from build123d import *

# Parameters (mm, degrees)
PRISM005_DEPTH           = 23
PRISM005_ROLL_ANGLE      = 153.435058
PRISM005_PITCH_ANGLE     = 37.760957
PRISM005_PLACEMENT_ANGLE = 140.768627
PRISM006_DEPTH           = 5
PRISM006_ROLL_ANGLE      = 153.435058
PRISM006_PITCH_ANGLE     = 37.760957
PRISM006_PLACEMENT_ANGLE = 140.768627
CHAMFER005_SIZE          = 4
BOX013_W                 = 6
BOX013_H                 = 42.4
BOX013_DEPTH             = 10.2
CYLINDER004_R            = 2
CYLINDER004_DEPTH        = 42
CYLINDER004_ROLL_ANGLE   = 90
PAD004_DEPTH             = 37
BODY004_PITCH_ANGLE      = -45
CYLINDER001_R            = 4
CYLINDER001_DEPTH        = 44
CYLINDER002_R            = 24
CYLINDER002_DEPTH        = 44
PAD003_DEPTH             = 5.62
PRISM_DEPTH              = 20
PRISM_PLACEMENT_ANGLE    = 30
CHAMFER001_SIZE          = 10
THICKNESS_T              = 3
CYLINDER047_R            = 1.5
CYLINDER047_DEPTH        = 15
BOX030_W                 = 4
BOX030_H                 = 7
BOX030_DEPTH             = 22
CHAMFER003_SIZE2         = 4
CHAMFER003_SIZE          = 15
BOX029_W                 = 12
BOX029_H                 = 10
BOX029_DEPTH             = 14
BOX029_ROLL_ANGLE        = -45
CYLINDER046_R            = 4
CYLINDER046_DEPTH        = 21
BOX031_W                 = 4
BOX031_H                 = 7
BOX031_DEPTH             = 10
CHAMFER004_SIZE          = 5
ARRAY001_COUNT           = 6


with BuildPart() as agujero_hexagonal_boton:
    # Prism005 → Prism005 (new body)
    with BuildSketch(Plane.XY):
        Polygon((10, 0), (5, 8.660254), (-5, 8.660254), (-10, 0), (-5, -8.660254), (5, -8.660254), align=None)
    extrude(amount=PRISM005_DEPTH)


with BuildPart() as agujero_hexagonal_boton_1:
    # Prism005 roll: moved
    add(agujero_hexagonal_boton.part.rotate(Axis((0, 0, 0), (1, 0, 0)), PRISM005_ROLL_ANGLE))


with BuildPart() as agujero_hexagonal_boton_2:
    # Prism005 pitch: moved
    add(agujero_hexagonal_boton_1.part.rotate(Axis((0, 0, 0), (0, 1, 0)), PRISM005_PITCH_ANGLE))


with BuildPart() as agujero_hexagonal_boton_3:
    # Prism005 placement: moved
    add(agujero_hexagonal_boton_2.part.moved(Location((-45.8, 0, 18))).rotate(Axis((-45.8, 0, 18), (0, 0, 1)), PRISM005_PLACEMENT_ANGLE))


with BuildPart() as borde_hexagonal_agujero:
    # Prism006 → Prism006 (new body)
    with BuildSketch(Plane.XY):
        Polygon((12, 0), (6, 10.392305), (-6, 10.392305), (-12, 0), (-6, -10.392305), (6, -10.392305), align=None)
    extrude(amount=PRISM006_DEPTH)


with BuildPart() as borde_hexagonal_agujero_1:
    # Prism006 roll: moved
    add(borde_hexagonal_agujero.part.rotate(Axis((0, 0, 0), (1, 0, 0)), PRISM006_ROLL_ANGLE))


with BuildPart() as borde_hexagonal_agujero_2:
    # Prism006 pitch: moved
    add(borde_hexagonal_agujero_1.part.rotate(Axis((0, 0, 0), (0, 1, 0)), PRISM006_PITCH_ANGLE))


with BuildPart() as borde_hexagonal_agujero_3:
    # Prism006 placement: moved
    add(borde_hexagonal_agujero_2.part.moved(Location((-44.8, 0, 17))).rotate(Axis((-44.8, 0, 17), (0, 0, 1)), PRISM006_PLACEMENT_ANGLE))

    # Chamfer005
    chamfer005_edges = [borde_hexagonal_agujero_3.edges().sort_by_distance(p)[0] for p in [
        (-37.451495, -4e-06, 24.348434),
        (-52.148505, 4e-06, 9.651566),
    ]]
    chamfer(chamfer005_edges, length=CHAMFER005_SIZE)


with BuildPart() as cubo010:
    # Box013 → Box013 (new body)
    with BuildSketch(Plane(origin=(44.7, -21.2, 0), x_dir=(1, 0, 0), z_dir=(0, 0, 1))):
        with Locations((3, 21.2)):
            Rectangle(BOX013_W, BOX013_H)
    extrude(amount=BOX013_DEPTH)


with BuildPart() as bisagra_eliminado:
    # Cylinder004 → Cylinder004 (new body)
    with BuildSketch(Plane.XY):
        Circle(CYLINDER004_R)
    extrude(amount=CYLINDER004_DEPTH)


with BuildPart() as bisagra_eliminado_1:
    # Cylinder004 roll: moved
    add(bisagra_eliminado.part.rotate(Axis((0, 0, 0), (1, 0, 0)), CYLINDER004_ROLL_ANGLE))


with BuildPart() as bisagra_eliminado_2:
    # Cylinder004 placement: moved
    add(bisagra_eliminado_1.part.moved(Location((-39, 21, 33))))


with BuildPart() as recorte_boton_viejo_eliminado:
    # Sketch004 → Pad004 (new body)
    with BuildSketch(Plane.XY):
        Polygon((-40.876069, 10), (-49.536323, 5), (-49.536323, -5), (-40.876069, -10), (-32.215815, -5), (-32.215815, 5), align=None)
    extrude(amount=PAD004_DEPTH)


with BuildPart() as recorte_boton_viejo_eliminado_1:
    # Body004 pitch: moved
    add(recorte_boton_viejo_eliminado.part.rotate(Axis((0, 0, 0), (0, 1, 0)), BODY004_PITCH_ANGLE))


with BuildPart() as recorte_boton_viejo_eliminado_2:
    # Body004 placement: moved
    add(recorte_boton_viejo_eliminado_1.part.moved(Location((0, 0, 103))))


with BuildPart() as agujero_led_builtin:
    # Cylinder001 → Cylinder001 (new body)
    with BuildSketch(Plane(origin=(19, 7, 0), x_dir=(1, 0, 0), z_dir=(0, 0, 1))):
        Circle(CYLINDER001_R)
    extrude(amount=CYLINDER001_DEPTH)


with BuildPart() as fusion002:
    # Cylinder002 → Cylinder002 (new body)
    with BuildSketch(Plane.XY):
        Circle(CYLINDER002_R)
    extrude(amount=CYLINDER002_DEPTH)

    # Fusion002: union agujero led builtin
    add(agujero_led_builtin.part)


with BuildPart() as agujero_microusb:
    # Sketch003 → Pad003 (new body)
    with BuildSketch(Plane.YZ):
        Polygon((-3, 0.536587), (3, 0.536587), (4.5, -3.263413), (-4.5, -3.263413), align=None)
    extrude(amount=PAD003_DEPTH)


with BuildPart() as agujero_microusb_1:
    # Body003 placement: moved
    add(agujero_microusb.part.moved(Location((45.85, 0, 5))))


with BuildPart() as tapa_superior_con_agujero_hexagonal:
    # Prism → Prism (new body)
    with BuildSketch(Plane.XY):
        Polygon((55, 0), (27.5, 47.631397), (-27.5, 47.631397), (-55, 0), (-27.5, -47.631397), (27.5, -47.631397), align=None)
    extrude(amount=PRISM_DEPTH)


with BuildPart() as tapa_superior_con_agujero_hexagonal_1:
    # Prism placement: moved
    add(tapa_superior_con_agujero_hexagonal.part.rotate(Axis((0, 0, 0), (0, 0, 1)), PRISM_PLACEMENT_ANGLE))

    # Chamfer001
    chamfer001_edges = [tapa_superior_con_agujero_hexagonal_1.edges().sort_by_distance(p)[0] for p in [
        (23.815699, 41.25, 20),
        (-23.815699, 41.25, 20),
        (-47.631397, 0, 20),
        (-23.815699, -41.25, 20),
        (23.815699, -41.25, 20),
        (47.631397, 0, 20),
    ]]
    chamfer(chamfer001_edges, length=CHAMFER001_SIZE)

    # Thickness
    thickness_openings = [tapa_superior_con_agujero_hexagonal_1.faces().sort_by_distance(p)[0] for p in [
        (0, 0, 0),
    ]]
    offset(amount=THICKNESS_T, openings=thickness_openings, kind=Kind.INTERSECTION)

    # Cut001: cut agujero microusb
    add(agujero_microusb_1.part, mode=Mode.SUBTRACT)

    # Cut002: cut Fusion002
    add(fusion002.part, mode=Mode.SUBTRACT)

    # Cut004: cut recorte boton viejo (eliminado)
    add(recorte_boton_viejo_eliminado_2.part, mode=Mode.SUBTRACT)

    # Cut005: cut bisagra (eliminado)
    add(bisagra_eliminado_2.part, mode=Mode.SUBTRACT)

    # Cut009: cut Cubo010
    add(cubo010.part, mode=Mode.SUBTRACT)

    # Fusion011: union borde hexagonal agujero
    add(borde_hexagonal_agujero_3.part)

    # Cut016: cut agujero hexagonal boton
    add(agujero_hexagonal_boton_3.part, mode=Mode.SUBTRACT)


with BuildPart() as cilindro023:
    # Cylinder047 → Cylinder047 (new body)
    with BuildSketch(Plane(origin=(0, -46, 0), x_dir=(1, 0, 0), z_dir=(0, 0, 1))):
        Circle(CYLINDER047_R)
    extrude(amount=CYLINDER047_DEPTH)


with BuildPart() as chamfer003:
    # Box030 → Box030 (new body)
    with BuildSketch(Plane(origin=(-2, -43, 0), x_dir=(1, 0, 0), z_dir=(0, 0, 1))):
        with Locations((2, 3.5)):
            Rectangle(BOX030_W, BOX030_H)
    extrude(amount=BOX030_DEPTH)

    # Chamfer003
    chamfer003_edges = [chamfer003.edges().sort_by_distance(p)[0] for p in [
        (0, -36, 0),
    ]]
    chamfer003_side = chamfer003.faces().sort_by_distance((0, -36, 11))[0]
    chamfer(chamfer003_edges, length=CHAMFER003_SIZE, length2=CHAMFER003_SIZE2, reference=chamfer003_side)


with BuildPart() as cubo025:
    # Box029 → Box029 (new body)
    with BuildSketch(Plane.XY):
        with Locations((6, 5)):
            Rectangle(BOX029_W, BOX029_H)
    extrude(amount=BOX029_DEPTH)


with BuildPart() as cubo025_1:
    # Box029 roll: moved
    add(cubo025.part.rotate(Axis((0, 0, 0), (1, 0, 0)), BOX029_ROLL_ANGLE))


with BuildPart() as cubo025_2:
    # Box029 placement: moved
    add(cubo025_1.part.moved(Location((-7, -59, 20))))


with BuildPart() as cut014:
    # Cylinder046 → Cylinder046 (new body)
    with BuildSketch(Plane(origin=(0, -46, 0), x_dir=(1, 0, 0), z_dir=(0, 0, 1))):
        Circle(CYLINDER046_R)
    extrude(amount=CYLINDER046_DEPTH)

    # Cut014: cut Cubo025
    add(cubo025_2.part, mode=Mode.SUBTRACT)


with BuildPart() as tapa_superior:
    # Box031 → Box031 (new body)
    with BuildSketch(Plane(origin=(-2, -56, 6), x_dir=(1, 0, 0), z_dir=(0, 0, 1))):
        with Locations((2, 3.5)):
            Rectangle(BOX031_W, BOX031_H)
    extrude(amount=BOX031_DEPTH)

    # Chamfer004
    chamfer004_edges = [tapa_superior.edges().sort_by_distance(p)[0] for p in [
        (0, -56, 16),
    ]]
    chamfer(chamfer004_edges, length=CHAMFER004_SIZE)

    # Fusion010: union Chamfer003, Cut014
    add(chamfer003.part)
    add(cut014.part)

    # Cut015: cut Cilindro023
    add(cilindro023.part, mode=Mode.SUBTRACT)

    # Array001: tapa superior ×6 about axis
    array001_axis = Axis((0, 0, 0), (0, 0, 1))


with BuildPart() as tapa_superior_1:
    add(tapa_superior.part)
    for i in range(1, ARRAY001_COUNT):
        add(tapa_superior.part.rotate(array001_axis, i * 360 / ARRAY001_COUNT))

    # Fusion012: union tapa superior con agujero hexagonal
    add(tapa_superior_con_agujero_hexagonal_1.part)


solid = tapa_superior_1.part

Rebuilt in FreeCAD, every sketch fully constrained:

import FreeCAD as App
import Part
import Sketcher

V = App.Vector
Q = App.Units.Quantity


def edges_at(feature, points):
    """Names of the edges that pass closest to the given points."""
    edges = feature.Shape.Edges
    near = lambda p: min(range(len(edges)), key=lambda i: edges[i].distToShape(Part.Vertex(*p))[0])
    return sorted({f"Edge{near(p) + 1}" for p in points})


def faces_at(feature, points):
    """Names of the faces that lie closest to the given points."""
    faces = feature.Shape.Faces
    near = lambda p: min(range(len(faces)), key=lambda i: faces[i].distToShape(Part.Vertex(*p))[0])
    return sorted({f"Face{near(p) + 1}" for p in points})


def add_polygon(sketch, points):
    """Adds a closed chain of lines whose ends are joined by coincident constraints."""
    first, n = sketch.GeometryCount, len(points)
    for a, b in zip(points, points[1:] + points[:1]):
        sketch.addGeometry(Part.LineSegment(App.Vector(*a, 0), App.Vector(*b, 0)), False)
    for i in range(n):
        sketch.addConstraint(Sketcher.Constraint("Coincident", first + i, 2, first + (i + 1) % n, 1))

doc = App.newDocument("Part")
params = doc.addObject("Spreadsheet::Sheet", "Params")
for row, (alias, value) in enumerate([
    ("sketch1_width", "10 mm"),
    ("sketch1_length", "10 mm"),
    ("pad1_length", "23 mm"),
    ("sketch2_width", "12 mm"),
    ("sketch2_length", "12 mm"),
    ("pad2_length", "5 mm"),
    ("chamfer_size", "4 mm"),
    ("sketch3_width", "6 mm"),
    ("sketch3_height", "42.4 mm"),
    ("pad3_length", "10.2 mm"),
    ("sketch4_diameter", "4 mm"),
    ("pad4_length", "42 mm"),
    ("sketch5_height", "10 mm"),
    ("sketch5_length", "10 mm"),
    ("pad5_length", "37 mm"),
    ("sketch6_diameter", "8 mm"),
    ("pad6_length", "44 mm"),
    ("sketch7_diameter", "48 mm"),
    ("pad7_length", "44 mm"),
    ("sketch8_width", "6 mm"),
    ("sketch8_width2", "9 mm"),
    ("pad8_length", "5.62 mm"),
    ("sketch9_width", "55 mm"),
    ("sketch9_length", "55 mm"),
    ("pad9_length", "20 mm"),
    ("chamfer2_size", "10 mm"),
    ("thickness_wall", "3 mm"),
    ("sketch10_diameter", "3 mm"),
    ("pad10_length", "15 mm"),
    ("sketch11_width", "4 mm"),
    ("sketch11_height", "7 mm"),
    ("pad11_length", "22 mm"),
    ("chamfer3_size", "15 mm"),
    ("chamfer3_size2", "4 mm"),
    ("sketch12_width", "12 mm"),
    ("sketch12_height", "10 mm"),
    ("pad12_length", "14 mm"),
    ("sketch13_diameter", "8 mm"),
    ("pad13_length", "21 mm"),
    ("sketch14_width", "4 mm"),
    ("sketch14_height", "7 mm"),
    ("pad14_length", "10 mm"),
    ("chamfer4_size", "5 mm"),
], start=1):
    params.set(f"A{row}", alias)
    params.set(f"B{row}", "=" + value)
    params.setAlias(f"B{row}", alias)

body = doc.addObject("PartDesign::Body", "Body")

sketch1 = body.newObject("Sketcher::SketchObject", "Sketch")
sketch1.AttachmentSupport = (doc.getObject("XY_Plane"), [""])
sketch1.MapMode = "FlatFace"
add_polygon(sketch1, [(10, 0), (5, 9), (-5, 9), (-10, 0), (-5, -9), (5, -9)])
sketch1.addConstraint([
    Sketcher.Constraint("Horizontal", 1),
    Sketcher.Constraint("Horizontal", 4),
    Sketcher.Constraint("Symmetric", 0, 2, 3, 2, -1, 1),
    Sketcher.Constraint("Symmetric", 2, 2, 5, 2, -1, 1),
    Sketcher.Constraint("PointOnObject", 2, 2, -1),
    Sketcher.Constraint("Parallel", 2, 5),
    Sketcher.Constraint("Vertical", 1, 2, 3, 2),
    Sketcher.Constraint("DistanceX", 1, 2, 1, 1, 10.0),
    Sketcher.Constraint("Angle", 0, Q("120 deg")),
    Sketcher.Constraint("Distance", 0, 10.0),
])
sketch1.setExpression("Constraints[13]", "Params.sketch1_width")
sketch1.setExpression("Constraints[15]", "Params.sketch1_length")
pad1 = body.newObject("PartDesign::Pad", "Pad")
pad1.Profile = sketch1
pad1.setExpression("Length", "Params.pad1_length")
body2 = doc.addObject("PartDesign::Body", "Body001")
doc.recompute()

body.Placement = App.Placement(V(0, 0, 0), App.Rotation(V(1, 0, 0), 153.435058))
boolean = body2.newObject("PartDesign::Boolean", "Boolean")
boolean.Type = "Fuse"
boolean.addObjects([body])
body3 = doc.addObject("PartDesign::Body", "Body002")
doc.recompute()

body2.Placement = App.Placement(V(0, 0, 0), App.Rotation(V(0, 1, 0), 37.760957))
boolean2 = body3.newObject("PartDesign::Boolean", "Boolean001")
boolean2.Type = "Fuse"
boolean2.addObjects([body2])
body4 = doc.addObject("PartDesign::Body", "Body003")
doc.recompute()

body3.Placement = App.Placement(V(-45.8, 0, 18), App.Rotation(V(0, 0, 1), 140.768627))
boolean3 = body4.newObject("PartDesign::Boolean", "Boolean002")
boolean3.Type = "Fuse"
boolean3.addObjects([body3])
body5 = doc.addObject("PartDesign::Body", "Body004")

sketch2 = body5.newObject("Sketcher::SketchObject", "Sketch001")
sketch2.AttachmentSupport = (doc.getObject("XY_Plane004"), [""])
sketch2.MapMode = "FlatFace"
add_polygon(sketch2, [(12, 0), (6, 10), (-6, 10), (-12, 0), (-6, -10), (6, -10)])
sketch2.addConstraint([
    Sketcher.Constraint("Horizontal", 1),
    Sketcher.Constraint("Horizontal", 4),
    Sketcher.Constraint("Symmetric", 0, 2, 3, 2, -1, 1),
    Sketcher.Constraint("Symmetric", 2, 2, 5, 2, -1, 1),
    Sketcher.Constraint("PointOnObject", 2, 2, -1),
    Sketcher.Constraint("Parallel", 2, 5),
    Sketcher.Constraint("Vertical", 1, 2, 3, 2),
    Sketcher.Constraint("DistanceX", 1, 2, 1, 1, 12.0),
    Sketcher.Constraint("Angle", 0, Q("120 deg")),
    Sketcher.Constraint("Distance", 0, 12.0),
])
sketch2.setExpression("Constraints[13]", "Params.sketch2_width")
sketch2.setExpression("Constraints[15]", "Params.sketch2_length")
pad2 = body5.newObject("PartDesign::Pad", "Pad001")
pad2.Profile = sketch2
pad2.setExpression("Length", "Params.pad2_length")
body6 = doc.addObject("PartDesign::Body", "Body005")
doc.recompute()

body5.Placement = App.Placement(V(0, 0, 0), App.Rotation(V(1, 0, 0), 153.435058))
boolean4 = body6.newObject("PartDesign::Boolean", "Boolean003")
boolean4.Type = "Fuse"
boolean4.addObjects([body5])
body7 = doc.addObject("PartDesign::Body", "Body006")
doc.recompute()

body6.Placement = App.Placement(V(0, 0, 0), App.Rotation(V(0, 1, 0), 37.760957))
boolean5 = body7.newObject("PartDesign::Boolean", "Boolean004")
boolean5.Type = "Fuse"
boolean5.addObjects([body6])
body8 = doc.addObject("PartDesign::Body", "Body007")
doc.recompute()

body7.Placement = App.Placement(V(-44.8, 0, 17), App.Rotation(V(0, 0, 1), 140.768627))
boolean6 = body8.newObject("PartDesign::Boolean", "Boolean005")
boolean6.Type = "Fuse"
boolean6.addObjects([body7])
doc.recompute()

chamfer = body8.newObject("PartDesign::Chamfer", "Chamfer")
chamfer.Base = (boolean6, edges_at(boolean6, [(-37.451, 0, 24.348), (-52.149, 0, 9.652)]))
chamfer.setExpression("Size", "Params.chamfer_size")
body9 = doc.addObject("PartDesign::Body", "Body008")

sketch3 = body9.newObject("Sketcher::SketchObject", "Sketch002")
sketch3.AttachmentSupport = (doc.getObject("XY_Plane008"), [""])
sketch3.MapMode = "FlatFace"
add_polygon(sketch3, [(45, 21), (45, -21), (51, -21), (51, 21)])
sketch3.addConstraint([
    Sketcher.Constraint("Vertical", 0),
    Sketcher.Constraint("Horizontal", 1),
    Sketcher.Constraint("Vertical", 2),
    Sketcher.Constraint("Horizontal", 3),
    Sketcher.Constraint("DistanceX", 1, 1, 1, 2, 6.0),
    Sketcher.Constraint("DistanceY", 0, 2, 0, 1, 42.4),
    Sketcher.Constraint("DistanceX", -1, 1, 0, 2, 44.7),
    Sketcher.Constraint("DistanceY", 0, 2, -1, 1, 21.2),
])
sketch3.setExpression("Constraints[8]", "Params.sketch3_width")
sketch3.setExpression("Constraints[9]", "Params.sketch3_height")
pad3 = body9.newObject("PartDesign::Pad", "Pad002")
pad3.Profile = sketch3
pad3.setExpression("Length", "Params.pad3_length")
body10 = doc.addObject("PartDesign::Body", "Body009")

sketch4 = body10.newObject("Sketcher::SketchObject", "Sketch003")
sketch4.AttachmentSupport = (doc.getObject("XY_Plane009"), [""])
sketch4.MapMode = "FlatFace"
sketch4.addGeometry(Part.Circle(V(0, 0, 0), V(0, 0, 1), 2), False)
sketch4.addConstraint([
    Sketcher.Constraint("Coincident", 0, 3, -1, 1),
    Sketcher.Constraint("Diameter", 0, 4.0),
])
sketch4.setExpression("Constraints[1]", "Params.sketch4_diameter")
pad4 = body10.newObject("PartDesign::Pad", "Pad003")
pad4.Profile = sketch4
pad4.setExpression("Length", "Params.pad4_length")
body11 = doc.addObject("PartDesign::Body", "Body010")
doc.recompute()

body10.Placement = App.Placement(V(0, 0, 0), App.Rotation(V(1, 0, 0), 90))
boolean7 = body11.newObject("PartDesign::Boolean", "Boolean006")
boolean7.Type = "Fuse"
boolean7.addObjects([body10])
body12 = doc.addObject("PartDesign::Body", "Body011")
doc.recompute()

body11.Placement = App.Placement(V(-39, 21, 33), App.Rotation(V(0, 0, 1), 0))
boolean8 = body12.newObject("PartDesign::Boolean", "Boolean007")
boolean8.Type = "Fuse"
boolean8.addObjects([body11])
body13 = doc.addObject("PartDesign::Body", "Body012")

sketch5 = body13.newObject("Sketcher::SketchObject", "Sketch004")
sketch5.AttachmentSupport = (doc.getObject("XY_Plane012"), [""])
sketch5.MapMode = "FlatFace"
add_polygon(sketch5, [(-41, 10), (-50, 5), (-50, -5), (-41, -10), (-32, -5), (-32, 5)])
sketch5.addConstraint([
    Sketcher.Constraint("Vertical", 1),
    Sketcher.Constraint("Vertical", 4),
    Sketcher.Constraint("Symmetric", 2, 2, 5, 2, -1),
    Sketcher.Constraint("Parallel", 0, 3),
    Sketcher.Constraint("Parallel", 2, 5),
    Sketcher.Constraint("Horizontal", 1, 2, 3, 2),
    Sketcher.Constraint("Horizontal", 0, 2, 4, 2),
    Sketcher.Constraint("DistanceY", 1, 2, 1, 1, 10.0),
    Sketcher.Constraint("Angle", 0, Q("-150 deg")),
    Sketcher.Constraint("Distance", 0, 10.0),
    Sketcher.Constraint("DistanceX", 2, 2, -1, 1, 40.876069),
])
sketch5.setExpression("Constraints[13]", "Params.sketch5_height")
sketch5.setExpression("Constraints[15]", "Params.sketch5_length")
pad5 = body13.newObject("PartDesign::Pad", "Pad004")
pad5.Profile = sketch5
pad5.setExpression("Length", "Params.pad5_length")
body14 = doc.addObject("PartDesign::Body", "Body013")
doc.recompute()

body13.Placement = App.Placement(V(0, 0, 0), App.Rotation(V(0, 1, 0), 315))
boolean9 = body14.newObject("PartDesign::Boolean", "Boolean008")
boolean9.Type = "Fuse"
boolean9.addObjects([body13])
body15 = doc.addObject("PartDesign::Body", "Body014")
doc.recompute()

body14.Placement = App.Placement(V(0, 0, 103), App.Rotation(V(0, 0, 1), 0))
boolean10 = body15.newObject("PartDesign::Boolean", "Boolean009")
boolean10.Type = "Fuse"
boolean10.addObjects([body14])
body16 = doc.addObject("PartDesign::Body", "Body015")

sketch6 = body16.newObject("Sketcher::SketchObject", "Sketch005")
sketch6.AttachmentSupport = (doc.getObject("XY_Plane015"), [""])
sketch6.MapMode = "FlatFace"
sketch6.addGeometry(Part.Circle(V(19, 7, 0), V(0, 0, 1), 4), False)
sketch6.addConstraint([
    Sketcher.Constraint("Diameter", 0, 8.0),
    Sketcher.Constraint("DistanceX", -1, 1, 0, 3, 19.0),
    Sketcher.Constraint("DistanceY", -1, 1, 0, 3, 7.0),
])
sketch6.setExpression("Constraints[0]", "Params.sketch6_diameter")
pad6 = body16.newObject("PartDesign::Pad", "Pad005")
pad6.Profile = sketch6
pad6.setExpression("Length", "Params.pad6_length")
body17 = doc.addObject("PartDesign::Body", "Body016")

sketch7 = body17.newObject("Sketcher::SketchObject", "Sketch006")
sketch7.AttachmentSupport = (doc.getObject("XY_Plane016"), [""])
sketch7.MapMode = "FlatFace"
sketch7.addGeometry(Part.Circle(V(0, 0, 0), V(0, 0, 1), 24), False)
sketch7.addConstraint([
    Sketcher.Constraint("Coincident", 0, 3, -1, 1),
    Sketcher.Constraint("Diameter", 0, 48.0),
])
sketch7.setExpression("Constraints[1]", "Params.sketch7_diameter")
pad7 = body17.newObject("PartDesign::Pad", "Pad006")
pad7.Profile = sketch7
pad7.setExpression("Length", "Params.pad7_length")
doc.recompute()

boolean11 = body17.newObject("PartDesign::Boolean", "Boolean010")
boolean11.Type = "Fuse"
boolean11.addObjects([body16])
body18 = doc.addObject("PartDesign::Body", "Body017")

sketch8 = body18.newObject("Sketcher::SketchObject", "Sketch007")
sketch8.AttachmentSupport = (doc.getObject("YZ_Plane017"), [""])
sketch8.MapMode = "FlatFace"
add_polygon(sketch8, [(3, 0.5), (-3, 0.5), (-4.5, -3.3), (4.5, -3.3)])
sketch8.addConstraint([
    Sketcher.Constraint("Horizontal", 0),
    Sketcher.Constraint("Horizontal", 2),
    Sketcher.Constraint("Equal", 1, 3),
    Sketcher.Constraint("DistanceX", 0, 2, 0, 1, 6.0),
    Sketcher.Constraint("DistanceX", 2, 1, 2, 2, 9.0),
    Sketcher.Constraint("DistanceX", 0, 2, -1, 1, 3.0),
    Sketcher.Constraint("DistanceY", 1, 2, 0, 2, 3.8),
    Sketcher.Constraint("DistanceY", -1, 1, 0, 2, 0.536587),
])
sketch8.setExpression("Constraints[7]", "Params.sketch8_width")
sketch8.setExpression("Constraints[8]", "Params.sketch8_width2")
pad8 = body18.newObject("PartDesign::Pad", "Pad007")
pad8.Profile = sketch8
pad8.setExpression("Length", "Params.pad8_length")
body19 = doc.addObject("PartDesign::Body", "Body018")
doc.recompute()

body18.Placement = App.Placement(V(45.85, 0, 5), App.Rotation(V(0, 0, 1), 0))
boolean12 = body19.newObject("PartDesign::Boolean", "Boolean011")
boolean12.Type = "Fuse"
boolean12.addObjects([body18])
body20 = doc.addObject("PartDesign::Body", "Body019")

sketch9 = body20.newObject("Sketcher::SketchObject", "Sketch008")
sketch9.AttachmentSupport = (doc.getObject("XY_Plane019"), [""])
sketch9.MapMode = "FlatFace"
add_polygon(sketch9, [(55, 0), (28, 48), (-28, 48), (-55, 0), (-28, -48), (28, -48)])
sketch9.addConstraint([
    Sketcher.Constraint("Horizontal", 1),
    Sketcher.Constraint("Horizontal", 4),
    Sketcher.Constraint("Symmetric", 0, 2, 3, 2, -1, 1),
    Sketcher.Constraint("Symmetric", 2, 2, 5, 2, -1, 1),
    Sketcher.Constraint("PointOnObject", 2, 2, -1),
    Sketcher.Constraint("Parallel", 2, 5),
    Sketcher.Constraint("Vertical", 1, 2, 3, 2),
    Sketcher.Constraint("DistanceX", 1, 2, 1, 1, 55.0),
    Sketcher.Constraint("Angle", 0, Q("120 deg")),
    Sketcher.Constraint("Distance", 0, 55.0),
])
sketch9.setExpression("Constraints[13]", "Params.sketch9_width")
sketch9.setExpression("Constraints[15]", "Params.sketch9_length")
pad9 = body20.newObject("PartDesign::Pad", "Pad008")
pad9.Profile = sketch9
pad9.setExpression("Length", "Params.pad9_length")
body21 = doc.addObject("PartDesign::Body", "Body020")
doc.recompute()

body20.Placement = App.Placement(V(0, 0, 0), App.Rotation(V(0, 0, 1), 30))
boolean13 = body21.newObject("PartDesign::Boolean", "Boolean012")
boolean13.Type = "Fuse"
boolean13.addObjects([body20])
doc.recompute()

chamfer2 = body21.newObject("PartDesign::Chamfer", "Chamfer001")
chamfer2.Base = (boolean13, edges_at(boolean13, [
    (23.816, 41.25, 20),
    (-23.816, 41.25, 20),
    (-47.631, 0, 20),
    (-23.816, -41.25, 20),
    (23.816, -41.25, 20),
    (47.631, 0, 20),
]))
chamfer2.setExpression("Size", "Params.chamfer2_size")
doc.recompute()

thickness = body21.newObject("PartDesign::Thickness", "Thickness")
thickness.Base = (chamfer2, faces_at(chamfer2, [(0, 0, 0)]))
thickness.setExpression("Value", "Params.thickness_wall")
thickness.Reversed = False
thickness.Join = "Intersection"
doc.recompute()

boolean14 = body21.newObject("PartDesign::Boolean", "Boolean013")
boolean14.Type = "Cut"
boolean14.addObjects([body19])
doc.recompute()

boolean15 = body21.newObject("PartDesign::Boolean", "Boolean014")
boolean15.Type = "Cut"
boolean15.addObjects([body17])
doc.recompute()

boolean16 = body21.newObject("PartDesign::Boolean", "Boolean015")
boolean16.Type = "Cut"
boolean16.addObjects([body15])
doc.recompute()

boolean17 = body21.newObject("PartDesign::Boolean", "Boolean016")
boolean17.Type = "Cut"
boolean17.addObjects([body12])
doc.recompute()

boolean18 = body21.newObject("PartDesign::Boolean", "Boolean017")
boolean18.Type = "Cut"
boolean18.addObjects([body9])
doc.recompute()

boolean19 = body21.newObject("PartDesign::Boolean", "Boolean018")
boolean19.Type = "Fuse"
boolean19.addObjects([body8])
doc.recompute()

boolean20 = body21.newObject("PartDesign::Boolean", "Boolean019")
boolean20.Type = "Cut"
boolean20.addObjects([body4])
body22 = doc.addObject("PartDesign::Body", "Body021")

sketch10 = body22.newObject("Sketcher::SketchObject", "Sketch009")
sketch10.AttachmentSupport = (doc.getObject("XY_Plane021"), [""])
sketch10.MapMode = "FlatFace"
sketch10.addGeometry(Part.Circle(V(0, -46, 0), V(0, 0, 1), 1.5), False)
sketch10.addConstraint([
    Sketcher.Constraint("PointOnObject", 0, 3, -2),
    Sketcher.Constraint("Diameter", 0, 3.0),
    Sketcher.Constraint("DistanceY", 0, 3, -1, 1, 46.0),
])
sketch10.setExpression("Constraints[1]", "Params.sketch10_diameter")
pad10 = body22.newObject("PartDesign::Pad", "Pad009")
pad10.Profile = sketch10
pad10.setExpression("Length", "Params.pad10_length")
body23 = doc.addObject("PartDesign::Body", "Body022")

sketch11 = body23.newObject("Sketcher::SketchObject", "Sketch010")
sketch11.AttachmentSupport = (doc.getObject("XY_Plane022"), [""])
sketch11.MapMode = "FlatFace"
add_polygon(sketch11, [(-2, -36), (-2, -43), (2, -43), (2, -36)])
sketch11.addConstraint([
    Sketcher.Constraint("Vertical", 0),
    Sketcher.Constraint("Horizontal", 1),
    Sketcher.Constraint("Vertical", 2),
    Sketcher.Constraint("Horizontal", 3),
    Sketcher.Constraint("DistanceX", 1, 1, 1, 2, 4.0),
    Sketcher.Constraint("DistanceY", 0, 2, 0, 1, 7.0),
    Sketcher.Constraint("DistanceX", 0, 2, -1, 1, 2.0),
    Sketcher.Constraint("DistanceY", 0, 2, -1, 1, 43.0),
])
sketch11.setExpression("Constraints[8]", "Params.sketch11_width")
sketch11.setExpression("Constraints[9]", "Params.sketch11_height")
pad11 = body23.newObject("PartDesign::Pad", "Pad010")
pad11.Profile = sketch11
pad11.setExpression("Length", "Params.pad11_length")
doc.recompute()

chamfer3 = body23.newObject("PartDesign::Chamfer", "Chamfer002")
chamfer3.Base = (pad11, edges_at(pad11, [(0, -36, 0)]))
chamfer3.ChamferType = "Two distances"
chamfer3.setExpression("Size", "Params.chamfer3_size")
chamfer3.setExpression("Size2", "Params.chamfer3_size2")
body24 = doc.addObject("PartDesign::Body", "Body023")

sketch12 = body24.newObject("Sketcher::SketchObject", "Sketch011")
sketch12.AttachmentSupport = (doc.getObject("XY_Plane023"), [""])
sketch12.MapMode = "FlatFace"
add_polygon(sketch12, [(0, 10), (0, 0), (12, 0), (12, 10)])
sketch12.addConstraint([
    Sketcher.Constraint("Vertical", 0),
    Sketcher.Constraint("Horizontal", 1),
    Sketcher.Constraint("Vertical", 2),
    Sketcher.Constraint("Horizontal", 3),
    Sketcher.Constraint("Coincident", 0, 2, -1, 1),
    Sketcher.Constraint("DistanceX", 1, 1, 1, 2, 12.0),
    Sketcher.Constraint("DistanceY", 0, 2, 0, 1, 10.0),
])
sketch12.setExpression("Constraints[9]", "Params.sketch12_width")
sketch12.setExpression("Constraints[10]", "Params.sketch12_height")
pad12 = body24.newObject("PartDesign::Pad", "Pad011")
pad12.Profile = sketch12
pad12.setExpression("Length", "Params.pad12_length")
body25 = doc.addObject("PartDesign::Body", "Body024")
doc.recompute()

body24.Placement = App.Placement(V(0, 0, 0), App.Rotation(V(1, 0, 0), 315))
boolean21 = body25.newObject("PartDesign::Boolean", "Boolean020")
boolean21.Type = "Fuse"
boolean21.addObjects([body24])
body26 = doc.addObject("PartDesign::Body", "Body025")
doc.recompute()

body25.Placement = App.Placement(V(-7, -59, 20), App.Rotation(V(0, 0, 1), 0))
boolean22 = body26.newObject("PartDesign::Boolean", "Boolean021")
boolean22.Type = "Fuse"
boolean22.addObjects([body25])
body27 = doc.addObject("PartDesign::Body", "Body026")

sketch13 = body27.newObject("Sketcher::SketchObject", "Sketch012")
sketch13.AttachmentSupport = (doc.getObject("XY_Plane026"), [""])
sketch13.MapMode = "FlatFace"
sketch13.addGeometry(Part.Circle(V(0, -46, 0), V(0, 0, 1), 4), False)
sketch13.addConstraint([
    Sketcher.Constraint("PointOnObject", 0, 3, -2),
    Sketcher.Constraint("Diameter", 0, 8.0),
    Sketcher.Constraint("DistanceY", 0, 3, -1, 1, 46.0),
])
sketch13.setExpression("Constraints[1]", "Params.sketch13_diameter")
pad13 = body27.newObject("PartDesign::Pad", "Pad012")
pad13.Profile = sketch13
pad13.setExpression("Length", "Params.pad13_length")
doc.recompute()

boolean23 = body27.newObject("PartDesign::Boolean", "Boolean022")
boolean23.Type = "Cut"
boolean23.addObjects([body26])
body28 = doc.addObject("PartDesign::Body", "Body027")
body28.AllowCompound = True

sketch14 = body28.newObject("Sketcher::SketchObject", "Sketch013")
sketch14.AttachmentSupport = (doc.getObject("XY_Plane027"), [""])
sketch14.MapMode = "FlatFace"
sketch14.AttachmentOffset = App.Placement(V(0, 0, 6), App.Rotation())
add_polygon(sketch14, [(-2, -49), (-2, -56), (2, -56), (2, -49)])
sketch14.addConstraint([
    Sketcher.Constraint("Vertical", 0),
    Sketcher.Constraint("Horizontal", 1),
    Sketcher.Constraint("Vertical", 2),
    Sketcher.Constraint("Horizontal", 3),
    Sketcher.Constraint("DistanceX", 1, 1, 1, 2, 4.0),
    Sketcher.Constraint("DistanceY", 0, 2, 0, 1, 7.0),
    Sketcher.Constraint("DistanceX", 0, 2, -1, 1, 2.0),
    Sketcher.Constraint("DistanceY", 0, 2, -1, 1, 56.0),
])
sketch14.setExpression("Constraints[8]", "Params.sketch14_width")
sketch14.setExpression("Constraints[9]", "Params.sketch14_height")
pad14 = body28.newObject("PartDesign::Pad", "Pad013")
pad14.Profile = sketch14
pad14.setExpression("Length", "Params.pad14_length")
doc.recompute()

chamfer4 = body28.newObject("PartDesign::Chamfer", "Chamfer003")
chamfer4.Base = (pad14, edges_at(pad14, [(0, -56, 16)]))
chamfer4.setExpression("Size", "Params.chamfer4_size")
doc.recompute()

boolean24 = body28.newObject("PartDesign::Boolean", "Boolean023")
boolean24.Type = "Fuse"
boolean24.addObjects([body23])
doc.recompute()

boolean25 = body28.newObject("PartDesign::Boolean", "Boolean024")
boolean25.Type = "Fuse"
boolean25.addObjects([body27])
doc.recompute()

boolean26 = body28.newObject("PartDesign::Boolean", "Boolean025")
boolean26.Type = "Cut"
boolean26.addObjects([body22])
body29 = doc.addObject("PartDesign::Body", "Body028")
body29.AllowCompound = True
doc.recompute()

body29.BaseFeature = body28
doc.recompute()

body30 = doc.addObject("PartDesign::Body", "Body029")
body30.BaseFeature = body28
body30.Placement = App.Placement(V(0, 0, 0), App.Rotation(V(0, 0, 1), 60))
boolean27 = body29.newObject("PartDesign::Boolean", "Boolean026")
boolean27.Type = "Fuse"
boolean27.addObjects([body30])
doc.recompute()

body31 = doc.addObject("PartDesign::Body", "Body030")
body31.BaseFeature = body28
body31.Placement = App.Placement(V(0, 0, 0), App.Rotation(V(0, 0, 1), 120))
boolean28 = body29.newObject("PartDesign::Boolean", "Boolean027")
boolean28.Type = "Fuse"
boolean28.addObjects([body31])
doc.recompute()

body32 = doc.addObject("PartDesign::Body", "Body031")
body32.BaseFeature = body28
body32.Placement = App.Placement(V(0, 0, 0), App.Rotation(V(0, 0, 1), 180))
boolean29 = body29.newObject("PartDesign::Boolean", "Boolean028")
boolean29.Type = "Fuse"
boolean29.addObjects([body32])
doc.recompute()

body33 = doc.addObject("PartDesign::Body", "Body032")
body33.BaseFeature = body28
body33.Placement = App.Placement(V(0, 0, 0), App.Rotation(V(0, 0, 1), 240))
boolean30 = body29.newObject("PartDesign::Boolean", "Boolean029")
boolean30.Type = "Fuse"
boolean30.addObjects([body33])
doc.recompute()

body28.Placement = App.Placement(V(0, 0, 0), App.Rotation(V(0, 0, 1), 300))
boolean31 = body29.newObject("PartDesign::Boolean", "Boolean030")
boolean31.Type = "Fuse"
boolean31.addObjects([body28])
doc.recompute()

boolean32 = body29.newObject("PartDesign::Boolean", "Boolean031")
boolean32.Type = "Fuse"
boolean32.addObjects([body21])

doc.recompute()
